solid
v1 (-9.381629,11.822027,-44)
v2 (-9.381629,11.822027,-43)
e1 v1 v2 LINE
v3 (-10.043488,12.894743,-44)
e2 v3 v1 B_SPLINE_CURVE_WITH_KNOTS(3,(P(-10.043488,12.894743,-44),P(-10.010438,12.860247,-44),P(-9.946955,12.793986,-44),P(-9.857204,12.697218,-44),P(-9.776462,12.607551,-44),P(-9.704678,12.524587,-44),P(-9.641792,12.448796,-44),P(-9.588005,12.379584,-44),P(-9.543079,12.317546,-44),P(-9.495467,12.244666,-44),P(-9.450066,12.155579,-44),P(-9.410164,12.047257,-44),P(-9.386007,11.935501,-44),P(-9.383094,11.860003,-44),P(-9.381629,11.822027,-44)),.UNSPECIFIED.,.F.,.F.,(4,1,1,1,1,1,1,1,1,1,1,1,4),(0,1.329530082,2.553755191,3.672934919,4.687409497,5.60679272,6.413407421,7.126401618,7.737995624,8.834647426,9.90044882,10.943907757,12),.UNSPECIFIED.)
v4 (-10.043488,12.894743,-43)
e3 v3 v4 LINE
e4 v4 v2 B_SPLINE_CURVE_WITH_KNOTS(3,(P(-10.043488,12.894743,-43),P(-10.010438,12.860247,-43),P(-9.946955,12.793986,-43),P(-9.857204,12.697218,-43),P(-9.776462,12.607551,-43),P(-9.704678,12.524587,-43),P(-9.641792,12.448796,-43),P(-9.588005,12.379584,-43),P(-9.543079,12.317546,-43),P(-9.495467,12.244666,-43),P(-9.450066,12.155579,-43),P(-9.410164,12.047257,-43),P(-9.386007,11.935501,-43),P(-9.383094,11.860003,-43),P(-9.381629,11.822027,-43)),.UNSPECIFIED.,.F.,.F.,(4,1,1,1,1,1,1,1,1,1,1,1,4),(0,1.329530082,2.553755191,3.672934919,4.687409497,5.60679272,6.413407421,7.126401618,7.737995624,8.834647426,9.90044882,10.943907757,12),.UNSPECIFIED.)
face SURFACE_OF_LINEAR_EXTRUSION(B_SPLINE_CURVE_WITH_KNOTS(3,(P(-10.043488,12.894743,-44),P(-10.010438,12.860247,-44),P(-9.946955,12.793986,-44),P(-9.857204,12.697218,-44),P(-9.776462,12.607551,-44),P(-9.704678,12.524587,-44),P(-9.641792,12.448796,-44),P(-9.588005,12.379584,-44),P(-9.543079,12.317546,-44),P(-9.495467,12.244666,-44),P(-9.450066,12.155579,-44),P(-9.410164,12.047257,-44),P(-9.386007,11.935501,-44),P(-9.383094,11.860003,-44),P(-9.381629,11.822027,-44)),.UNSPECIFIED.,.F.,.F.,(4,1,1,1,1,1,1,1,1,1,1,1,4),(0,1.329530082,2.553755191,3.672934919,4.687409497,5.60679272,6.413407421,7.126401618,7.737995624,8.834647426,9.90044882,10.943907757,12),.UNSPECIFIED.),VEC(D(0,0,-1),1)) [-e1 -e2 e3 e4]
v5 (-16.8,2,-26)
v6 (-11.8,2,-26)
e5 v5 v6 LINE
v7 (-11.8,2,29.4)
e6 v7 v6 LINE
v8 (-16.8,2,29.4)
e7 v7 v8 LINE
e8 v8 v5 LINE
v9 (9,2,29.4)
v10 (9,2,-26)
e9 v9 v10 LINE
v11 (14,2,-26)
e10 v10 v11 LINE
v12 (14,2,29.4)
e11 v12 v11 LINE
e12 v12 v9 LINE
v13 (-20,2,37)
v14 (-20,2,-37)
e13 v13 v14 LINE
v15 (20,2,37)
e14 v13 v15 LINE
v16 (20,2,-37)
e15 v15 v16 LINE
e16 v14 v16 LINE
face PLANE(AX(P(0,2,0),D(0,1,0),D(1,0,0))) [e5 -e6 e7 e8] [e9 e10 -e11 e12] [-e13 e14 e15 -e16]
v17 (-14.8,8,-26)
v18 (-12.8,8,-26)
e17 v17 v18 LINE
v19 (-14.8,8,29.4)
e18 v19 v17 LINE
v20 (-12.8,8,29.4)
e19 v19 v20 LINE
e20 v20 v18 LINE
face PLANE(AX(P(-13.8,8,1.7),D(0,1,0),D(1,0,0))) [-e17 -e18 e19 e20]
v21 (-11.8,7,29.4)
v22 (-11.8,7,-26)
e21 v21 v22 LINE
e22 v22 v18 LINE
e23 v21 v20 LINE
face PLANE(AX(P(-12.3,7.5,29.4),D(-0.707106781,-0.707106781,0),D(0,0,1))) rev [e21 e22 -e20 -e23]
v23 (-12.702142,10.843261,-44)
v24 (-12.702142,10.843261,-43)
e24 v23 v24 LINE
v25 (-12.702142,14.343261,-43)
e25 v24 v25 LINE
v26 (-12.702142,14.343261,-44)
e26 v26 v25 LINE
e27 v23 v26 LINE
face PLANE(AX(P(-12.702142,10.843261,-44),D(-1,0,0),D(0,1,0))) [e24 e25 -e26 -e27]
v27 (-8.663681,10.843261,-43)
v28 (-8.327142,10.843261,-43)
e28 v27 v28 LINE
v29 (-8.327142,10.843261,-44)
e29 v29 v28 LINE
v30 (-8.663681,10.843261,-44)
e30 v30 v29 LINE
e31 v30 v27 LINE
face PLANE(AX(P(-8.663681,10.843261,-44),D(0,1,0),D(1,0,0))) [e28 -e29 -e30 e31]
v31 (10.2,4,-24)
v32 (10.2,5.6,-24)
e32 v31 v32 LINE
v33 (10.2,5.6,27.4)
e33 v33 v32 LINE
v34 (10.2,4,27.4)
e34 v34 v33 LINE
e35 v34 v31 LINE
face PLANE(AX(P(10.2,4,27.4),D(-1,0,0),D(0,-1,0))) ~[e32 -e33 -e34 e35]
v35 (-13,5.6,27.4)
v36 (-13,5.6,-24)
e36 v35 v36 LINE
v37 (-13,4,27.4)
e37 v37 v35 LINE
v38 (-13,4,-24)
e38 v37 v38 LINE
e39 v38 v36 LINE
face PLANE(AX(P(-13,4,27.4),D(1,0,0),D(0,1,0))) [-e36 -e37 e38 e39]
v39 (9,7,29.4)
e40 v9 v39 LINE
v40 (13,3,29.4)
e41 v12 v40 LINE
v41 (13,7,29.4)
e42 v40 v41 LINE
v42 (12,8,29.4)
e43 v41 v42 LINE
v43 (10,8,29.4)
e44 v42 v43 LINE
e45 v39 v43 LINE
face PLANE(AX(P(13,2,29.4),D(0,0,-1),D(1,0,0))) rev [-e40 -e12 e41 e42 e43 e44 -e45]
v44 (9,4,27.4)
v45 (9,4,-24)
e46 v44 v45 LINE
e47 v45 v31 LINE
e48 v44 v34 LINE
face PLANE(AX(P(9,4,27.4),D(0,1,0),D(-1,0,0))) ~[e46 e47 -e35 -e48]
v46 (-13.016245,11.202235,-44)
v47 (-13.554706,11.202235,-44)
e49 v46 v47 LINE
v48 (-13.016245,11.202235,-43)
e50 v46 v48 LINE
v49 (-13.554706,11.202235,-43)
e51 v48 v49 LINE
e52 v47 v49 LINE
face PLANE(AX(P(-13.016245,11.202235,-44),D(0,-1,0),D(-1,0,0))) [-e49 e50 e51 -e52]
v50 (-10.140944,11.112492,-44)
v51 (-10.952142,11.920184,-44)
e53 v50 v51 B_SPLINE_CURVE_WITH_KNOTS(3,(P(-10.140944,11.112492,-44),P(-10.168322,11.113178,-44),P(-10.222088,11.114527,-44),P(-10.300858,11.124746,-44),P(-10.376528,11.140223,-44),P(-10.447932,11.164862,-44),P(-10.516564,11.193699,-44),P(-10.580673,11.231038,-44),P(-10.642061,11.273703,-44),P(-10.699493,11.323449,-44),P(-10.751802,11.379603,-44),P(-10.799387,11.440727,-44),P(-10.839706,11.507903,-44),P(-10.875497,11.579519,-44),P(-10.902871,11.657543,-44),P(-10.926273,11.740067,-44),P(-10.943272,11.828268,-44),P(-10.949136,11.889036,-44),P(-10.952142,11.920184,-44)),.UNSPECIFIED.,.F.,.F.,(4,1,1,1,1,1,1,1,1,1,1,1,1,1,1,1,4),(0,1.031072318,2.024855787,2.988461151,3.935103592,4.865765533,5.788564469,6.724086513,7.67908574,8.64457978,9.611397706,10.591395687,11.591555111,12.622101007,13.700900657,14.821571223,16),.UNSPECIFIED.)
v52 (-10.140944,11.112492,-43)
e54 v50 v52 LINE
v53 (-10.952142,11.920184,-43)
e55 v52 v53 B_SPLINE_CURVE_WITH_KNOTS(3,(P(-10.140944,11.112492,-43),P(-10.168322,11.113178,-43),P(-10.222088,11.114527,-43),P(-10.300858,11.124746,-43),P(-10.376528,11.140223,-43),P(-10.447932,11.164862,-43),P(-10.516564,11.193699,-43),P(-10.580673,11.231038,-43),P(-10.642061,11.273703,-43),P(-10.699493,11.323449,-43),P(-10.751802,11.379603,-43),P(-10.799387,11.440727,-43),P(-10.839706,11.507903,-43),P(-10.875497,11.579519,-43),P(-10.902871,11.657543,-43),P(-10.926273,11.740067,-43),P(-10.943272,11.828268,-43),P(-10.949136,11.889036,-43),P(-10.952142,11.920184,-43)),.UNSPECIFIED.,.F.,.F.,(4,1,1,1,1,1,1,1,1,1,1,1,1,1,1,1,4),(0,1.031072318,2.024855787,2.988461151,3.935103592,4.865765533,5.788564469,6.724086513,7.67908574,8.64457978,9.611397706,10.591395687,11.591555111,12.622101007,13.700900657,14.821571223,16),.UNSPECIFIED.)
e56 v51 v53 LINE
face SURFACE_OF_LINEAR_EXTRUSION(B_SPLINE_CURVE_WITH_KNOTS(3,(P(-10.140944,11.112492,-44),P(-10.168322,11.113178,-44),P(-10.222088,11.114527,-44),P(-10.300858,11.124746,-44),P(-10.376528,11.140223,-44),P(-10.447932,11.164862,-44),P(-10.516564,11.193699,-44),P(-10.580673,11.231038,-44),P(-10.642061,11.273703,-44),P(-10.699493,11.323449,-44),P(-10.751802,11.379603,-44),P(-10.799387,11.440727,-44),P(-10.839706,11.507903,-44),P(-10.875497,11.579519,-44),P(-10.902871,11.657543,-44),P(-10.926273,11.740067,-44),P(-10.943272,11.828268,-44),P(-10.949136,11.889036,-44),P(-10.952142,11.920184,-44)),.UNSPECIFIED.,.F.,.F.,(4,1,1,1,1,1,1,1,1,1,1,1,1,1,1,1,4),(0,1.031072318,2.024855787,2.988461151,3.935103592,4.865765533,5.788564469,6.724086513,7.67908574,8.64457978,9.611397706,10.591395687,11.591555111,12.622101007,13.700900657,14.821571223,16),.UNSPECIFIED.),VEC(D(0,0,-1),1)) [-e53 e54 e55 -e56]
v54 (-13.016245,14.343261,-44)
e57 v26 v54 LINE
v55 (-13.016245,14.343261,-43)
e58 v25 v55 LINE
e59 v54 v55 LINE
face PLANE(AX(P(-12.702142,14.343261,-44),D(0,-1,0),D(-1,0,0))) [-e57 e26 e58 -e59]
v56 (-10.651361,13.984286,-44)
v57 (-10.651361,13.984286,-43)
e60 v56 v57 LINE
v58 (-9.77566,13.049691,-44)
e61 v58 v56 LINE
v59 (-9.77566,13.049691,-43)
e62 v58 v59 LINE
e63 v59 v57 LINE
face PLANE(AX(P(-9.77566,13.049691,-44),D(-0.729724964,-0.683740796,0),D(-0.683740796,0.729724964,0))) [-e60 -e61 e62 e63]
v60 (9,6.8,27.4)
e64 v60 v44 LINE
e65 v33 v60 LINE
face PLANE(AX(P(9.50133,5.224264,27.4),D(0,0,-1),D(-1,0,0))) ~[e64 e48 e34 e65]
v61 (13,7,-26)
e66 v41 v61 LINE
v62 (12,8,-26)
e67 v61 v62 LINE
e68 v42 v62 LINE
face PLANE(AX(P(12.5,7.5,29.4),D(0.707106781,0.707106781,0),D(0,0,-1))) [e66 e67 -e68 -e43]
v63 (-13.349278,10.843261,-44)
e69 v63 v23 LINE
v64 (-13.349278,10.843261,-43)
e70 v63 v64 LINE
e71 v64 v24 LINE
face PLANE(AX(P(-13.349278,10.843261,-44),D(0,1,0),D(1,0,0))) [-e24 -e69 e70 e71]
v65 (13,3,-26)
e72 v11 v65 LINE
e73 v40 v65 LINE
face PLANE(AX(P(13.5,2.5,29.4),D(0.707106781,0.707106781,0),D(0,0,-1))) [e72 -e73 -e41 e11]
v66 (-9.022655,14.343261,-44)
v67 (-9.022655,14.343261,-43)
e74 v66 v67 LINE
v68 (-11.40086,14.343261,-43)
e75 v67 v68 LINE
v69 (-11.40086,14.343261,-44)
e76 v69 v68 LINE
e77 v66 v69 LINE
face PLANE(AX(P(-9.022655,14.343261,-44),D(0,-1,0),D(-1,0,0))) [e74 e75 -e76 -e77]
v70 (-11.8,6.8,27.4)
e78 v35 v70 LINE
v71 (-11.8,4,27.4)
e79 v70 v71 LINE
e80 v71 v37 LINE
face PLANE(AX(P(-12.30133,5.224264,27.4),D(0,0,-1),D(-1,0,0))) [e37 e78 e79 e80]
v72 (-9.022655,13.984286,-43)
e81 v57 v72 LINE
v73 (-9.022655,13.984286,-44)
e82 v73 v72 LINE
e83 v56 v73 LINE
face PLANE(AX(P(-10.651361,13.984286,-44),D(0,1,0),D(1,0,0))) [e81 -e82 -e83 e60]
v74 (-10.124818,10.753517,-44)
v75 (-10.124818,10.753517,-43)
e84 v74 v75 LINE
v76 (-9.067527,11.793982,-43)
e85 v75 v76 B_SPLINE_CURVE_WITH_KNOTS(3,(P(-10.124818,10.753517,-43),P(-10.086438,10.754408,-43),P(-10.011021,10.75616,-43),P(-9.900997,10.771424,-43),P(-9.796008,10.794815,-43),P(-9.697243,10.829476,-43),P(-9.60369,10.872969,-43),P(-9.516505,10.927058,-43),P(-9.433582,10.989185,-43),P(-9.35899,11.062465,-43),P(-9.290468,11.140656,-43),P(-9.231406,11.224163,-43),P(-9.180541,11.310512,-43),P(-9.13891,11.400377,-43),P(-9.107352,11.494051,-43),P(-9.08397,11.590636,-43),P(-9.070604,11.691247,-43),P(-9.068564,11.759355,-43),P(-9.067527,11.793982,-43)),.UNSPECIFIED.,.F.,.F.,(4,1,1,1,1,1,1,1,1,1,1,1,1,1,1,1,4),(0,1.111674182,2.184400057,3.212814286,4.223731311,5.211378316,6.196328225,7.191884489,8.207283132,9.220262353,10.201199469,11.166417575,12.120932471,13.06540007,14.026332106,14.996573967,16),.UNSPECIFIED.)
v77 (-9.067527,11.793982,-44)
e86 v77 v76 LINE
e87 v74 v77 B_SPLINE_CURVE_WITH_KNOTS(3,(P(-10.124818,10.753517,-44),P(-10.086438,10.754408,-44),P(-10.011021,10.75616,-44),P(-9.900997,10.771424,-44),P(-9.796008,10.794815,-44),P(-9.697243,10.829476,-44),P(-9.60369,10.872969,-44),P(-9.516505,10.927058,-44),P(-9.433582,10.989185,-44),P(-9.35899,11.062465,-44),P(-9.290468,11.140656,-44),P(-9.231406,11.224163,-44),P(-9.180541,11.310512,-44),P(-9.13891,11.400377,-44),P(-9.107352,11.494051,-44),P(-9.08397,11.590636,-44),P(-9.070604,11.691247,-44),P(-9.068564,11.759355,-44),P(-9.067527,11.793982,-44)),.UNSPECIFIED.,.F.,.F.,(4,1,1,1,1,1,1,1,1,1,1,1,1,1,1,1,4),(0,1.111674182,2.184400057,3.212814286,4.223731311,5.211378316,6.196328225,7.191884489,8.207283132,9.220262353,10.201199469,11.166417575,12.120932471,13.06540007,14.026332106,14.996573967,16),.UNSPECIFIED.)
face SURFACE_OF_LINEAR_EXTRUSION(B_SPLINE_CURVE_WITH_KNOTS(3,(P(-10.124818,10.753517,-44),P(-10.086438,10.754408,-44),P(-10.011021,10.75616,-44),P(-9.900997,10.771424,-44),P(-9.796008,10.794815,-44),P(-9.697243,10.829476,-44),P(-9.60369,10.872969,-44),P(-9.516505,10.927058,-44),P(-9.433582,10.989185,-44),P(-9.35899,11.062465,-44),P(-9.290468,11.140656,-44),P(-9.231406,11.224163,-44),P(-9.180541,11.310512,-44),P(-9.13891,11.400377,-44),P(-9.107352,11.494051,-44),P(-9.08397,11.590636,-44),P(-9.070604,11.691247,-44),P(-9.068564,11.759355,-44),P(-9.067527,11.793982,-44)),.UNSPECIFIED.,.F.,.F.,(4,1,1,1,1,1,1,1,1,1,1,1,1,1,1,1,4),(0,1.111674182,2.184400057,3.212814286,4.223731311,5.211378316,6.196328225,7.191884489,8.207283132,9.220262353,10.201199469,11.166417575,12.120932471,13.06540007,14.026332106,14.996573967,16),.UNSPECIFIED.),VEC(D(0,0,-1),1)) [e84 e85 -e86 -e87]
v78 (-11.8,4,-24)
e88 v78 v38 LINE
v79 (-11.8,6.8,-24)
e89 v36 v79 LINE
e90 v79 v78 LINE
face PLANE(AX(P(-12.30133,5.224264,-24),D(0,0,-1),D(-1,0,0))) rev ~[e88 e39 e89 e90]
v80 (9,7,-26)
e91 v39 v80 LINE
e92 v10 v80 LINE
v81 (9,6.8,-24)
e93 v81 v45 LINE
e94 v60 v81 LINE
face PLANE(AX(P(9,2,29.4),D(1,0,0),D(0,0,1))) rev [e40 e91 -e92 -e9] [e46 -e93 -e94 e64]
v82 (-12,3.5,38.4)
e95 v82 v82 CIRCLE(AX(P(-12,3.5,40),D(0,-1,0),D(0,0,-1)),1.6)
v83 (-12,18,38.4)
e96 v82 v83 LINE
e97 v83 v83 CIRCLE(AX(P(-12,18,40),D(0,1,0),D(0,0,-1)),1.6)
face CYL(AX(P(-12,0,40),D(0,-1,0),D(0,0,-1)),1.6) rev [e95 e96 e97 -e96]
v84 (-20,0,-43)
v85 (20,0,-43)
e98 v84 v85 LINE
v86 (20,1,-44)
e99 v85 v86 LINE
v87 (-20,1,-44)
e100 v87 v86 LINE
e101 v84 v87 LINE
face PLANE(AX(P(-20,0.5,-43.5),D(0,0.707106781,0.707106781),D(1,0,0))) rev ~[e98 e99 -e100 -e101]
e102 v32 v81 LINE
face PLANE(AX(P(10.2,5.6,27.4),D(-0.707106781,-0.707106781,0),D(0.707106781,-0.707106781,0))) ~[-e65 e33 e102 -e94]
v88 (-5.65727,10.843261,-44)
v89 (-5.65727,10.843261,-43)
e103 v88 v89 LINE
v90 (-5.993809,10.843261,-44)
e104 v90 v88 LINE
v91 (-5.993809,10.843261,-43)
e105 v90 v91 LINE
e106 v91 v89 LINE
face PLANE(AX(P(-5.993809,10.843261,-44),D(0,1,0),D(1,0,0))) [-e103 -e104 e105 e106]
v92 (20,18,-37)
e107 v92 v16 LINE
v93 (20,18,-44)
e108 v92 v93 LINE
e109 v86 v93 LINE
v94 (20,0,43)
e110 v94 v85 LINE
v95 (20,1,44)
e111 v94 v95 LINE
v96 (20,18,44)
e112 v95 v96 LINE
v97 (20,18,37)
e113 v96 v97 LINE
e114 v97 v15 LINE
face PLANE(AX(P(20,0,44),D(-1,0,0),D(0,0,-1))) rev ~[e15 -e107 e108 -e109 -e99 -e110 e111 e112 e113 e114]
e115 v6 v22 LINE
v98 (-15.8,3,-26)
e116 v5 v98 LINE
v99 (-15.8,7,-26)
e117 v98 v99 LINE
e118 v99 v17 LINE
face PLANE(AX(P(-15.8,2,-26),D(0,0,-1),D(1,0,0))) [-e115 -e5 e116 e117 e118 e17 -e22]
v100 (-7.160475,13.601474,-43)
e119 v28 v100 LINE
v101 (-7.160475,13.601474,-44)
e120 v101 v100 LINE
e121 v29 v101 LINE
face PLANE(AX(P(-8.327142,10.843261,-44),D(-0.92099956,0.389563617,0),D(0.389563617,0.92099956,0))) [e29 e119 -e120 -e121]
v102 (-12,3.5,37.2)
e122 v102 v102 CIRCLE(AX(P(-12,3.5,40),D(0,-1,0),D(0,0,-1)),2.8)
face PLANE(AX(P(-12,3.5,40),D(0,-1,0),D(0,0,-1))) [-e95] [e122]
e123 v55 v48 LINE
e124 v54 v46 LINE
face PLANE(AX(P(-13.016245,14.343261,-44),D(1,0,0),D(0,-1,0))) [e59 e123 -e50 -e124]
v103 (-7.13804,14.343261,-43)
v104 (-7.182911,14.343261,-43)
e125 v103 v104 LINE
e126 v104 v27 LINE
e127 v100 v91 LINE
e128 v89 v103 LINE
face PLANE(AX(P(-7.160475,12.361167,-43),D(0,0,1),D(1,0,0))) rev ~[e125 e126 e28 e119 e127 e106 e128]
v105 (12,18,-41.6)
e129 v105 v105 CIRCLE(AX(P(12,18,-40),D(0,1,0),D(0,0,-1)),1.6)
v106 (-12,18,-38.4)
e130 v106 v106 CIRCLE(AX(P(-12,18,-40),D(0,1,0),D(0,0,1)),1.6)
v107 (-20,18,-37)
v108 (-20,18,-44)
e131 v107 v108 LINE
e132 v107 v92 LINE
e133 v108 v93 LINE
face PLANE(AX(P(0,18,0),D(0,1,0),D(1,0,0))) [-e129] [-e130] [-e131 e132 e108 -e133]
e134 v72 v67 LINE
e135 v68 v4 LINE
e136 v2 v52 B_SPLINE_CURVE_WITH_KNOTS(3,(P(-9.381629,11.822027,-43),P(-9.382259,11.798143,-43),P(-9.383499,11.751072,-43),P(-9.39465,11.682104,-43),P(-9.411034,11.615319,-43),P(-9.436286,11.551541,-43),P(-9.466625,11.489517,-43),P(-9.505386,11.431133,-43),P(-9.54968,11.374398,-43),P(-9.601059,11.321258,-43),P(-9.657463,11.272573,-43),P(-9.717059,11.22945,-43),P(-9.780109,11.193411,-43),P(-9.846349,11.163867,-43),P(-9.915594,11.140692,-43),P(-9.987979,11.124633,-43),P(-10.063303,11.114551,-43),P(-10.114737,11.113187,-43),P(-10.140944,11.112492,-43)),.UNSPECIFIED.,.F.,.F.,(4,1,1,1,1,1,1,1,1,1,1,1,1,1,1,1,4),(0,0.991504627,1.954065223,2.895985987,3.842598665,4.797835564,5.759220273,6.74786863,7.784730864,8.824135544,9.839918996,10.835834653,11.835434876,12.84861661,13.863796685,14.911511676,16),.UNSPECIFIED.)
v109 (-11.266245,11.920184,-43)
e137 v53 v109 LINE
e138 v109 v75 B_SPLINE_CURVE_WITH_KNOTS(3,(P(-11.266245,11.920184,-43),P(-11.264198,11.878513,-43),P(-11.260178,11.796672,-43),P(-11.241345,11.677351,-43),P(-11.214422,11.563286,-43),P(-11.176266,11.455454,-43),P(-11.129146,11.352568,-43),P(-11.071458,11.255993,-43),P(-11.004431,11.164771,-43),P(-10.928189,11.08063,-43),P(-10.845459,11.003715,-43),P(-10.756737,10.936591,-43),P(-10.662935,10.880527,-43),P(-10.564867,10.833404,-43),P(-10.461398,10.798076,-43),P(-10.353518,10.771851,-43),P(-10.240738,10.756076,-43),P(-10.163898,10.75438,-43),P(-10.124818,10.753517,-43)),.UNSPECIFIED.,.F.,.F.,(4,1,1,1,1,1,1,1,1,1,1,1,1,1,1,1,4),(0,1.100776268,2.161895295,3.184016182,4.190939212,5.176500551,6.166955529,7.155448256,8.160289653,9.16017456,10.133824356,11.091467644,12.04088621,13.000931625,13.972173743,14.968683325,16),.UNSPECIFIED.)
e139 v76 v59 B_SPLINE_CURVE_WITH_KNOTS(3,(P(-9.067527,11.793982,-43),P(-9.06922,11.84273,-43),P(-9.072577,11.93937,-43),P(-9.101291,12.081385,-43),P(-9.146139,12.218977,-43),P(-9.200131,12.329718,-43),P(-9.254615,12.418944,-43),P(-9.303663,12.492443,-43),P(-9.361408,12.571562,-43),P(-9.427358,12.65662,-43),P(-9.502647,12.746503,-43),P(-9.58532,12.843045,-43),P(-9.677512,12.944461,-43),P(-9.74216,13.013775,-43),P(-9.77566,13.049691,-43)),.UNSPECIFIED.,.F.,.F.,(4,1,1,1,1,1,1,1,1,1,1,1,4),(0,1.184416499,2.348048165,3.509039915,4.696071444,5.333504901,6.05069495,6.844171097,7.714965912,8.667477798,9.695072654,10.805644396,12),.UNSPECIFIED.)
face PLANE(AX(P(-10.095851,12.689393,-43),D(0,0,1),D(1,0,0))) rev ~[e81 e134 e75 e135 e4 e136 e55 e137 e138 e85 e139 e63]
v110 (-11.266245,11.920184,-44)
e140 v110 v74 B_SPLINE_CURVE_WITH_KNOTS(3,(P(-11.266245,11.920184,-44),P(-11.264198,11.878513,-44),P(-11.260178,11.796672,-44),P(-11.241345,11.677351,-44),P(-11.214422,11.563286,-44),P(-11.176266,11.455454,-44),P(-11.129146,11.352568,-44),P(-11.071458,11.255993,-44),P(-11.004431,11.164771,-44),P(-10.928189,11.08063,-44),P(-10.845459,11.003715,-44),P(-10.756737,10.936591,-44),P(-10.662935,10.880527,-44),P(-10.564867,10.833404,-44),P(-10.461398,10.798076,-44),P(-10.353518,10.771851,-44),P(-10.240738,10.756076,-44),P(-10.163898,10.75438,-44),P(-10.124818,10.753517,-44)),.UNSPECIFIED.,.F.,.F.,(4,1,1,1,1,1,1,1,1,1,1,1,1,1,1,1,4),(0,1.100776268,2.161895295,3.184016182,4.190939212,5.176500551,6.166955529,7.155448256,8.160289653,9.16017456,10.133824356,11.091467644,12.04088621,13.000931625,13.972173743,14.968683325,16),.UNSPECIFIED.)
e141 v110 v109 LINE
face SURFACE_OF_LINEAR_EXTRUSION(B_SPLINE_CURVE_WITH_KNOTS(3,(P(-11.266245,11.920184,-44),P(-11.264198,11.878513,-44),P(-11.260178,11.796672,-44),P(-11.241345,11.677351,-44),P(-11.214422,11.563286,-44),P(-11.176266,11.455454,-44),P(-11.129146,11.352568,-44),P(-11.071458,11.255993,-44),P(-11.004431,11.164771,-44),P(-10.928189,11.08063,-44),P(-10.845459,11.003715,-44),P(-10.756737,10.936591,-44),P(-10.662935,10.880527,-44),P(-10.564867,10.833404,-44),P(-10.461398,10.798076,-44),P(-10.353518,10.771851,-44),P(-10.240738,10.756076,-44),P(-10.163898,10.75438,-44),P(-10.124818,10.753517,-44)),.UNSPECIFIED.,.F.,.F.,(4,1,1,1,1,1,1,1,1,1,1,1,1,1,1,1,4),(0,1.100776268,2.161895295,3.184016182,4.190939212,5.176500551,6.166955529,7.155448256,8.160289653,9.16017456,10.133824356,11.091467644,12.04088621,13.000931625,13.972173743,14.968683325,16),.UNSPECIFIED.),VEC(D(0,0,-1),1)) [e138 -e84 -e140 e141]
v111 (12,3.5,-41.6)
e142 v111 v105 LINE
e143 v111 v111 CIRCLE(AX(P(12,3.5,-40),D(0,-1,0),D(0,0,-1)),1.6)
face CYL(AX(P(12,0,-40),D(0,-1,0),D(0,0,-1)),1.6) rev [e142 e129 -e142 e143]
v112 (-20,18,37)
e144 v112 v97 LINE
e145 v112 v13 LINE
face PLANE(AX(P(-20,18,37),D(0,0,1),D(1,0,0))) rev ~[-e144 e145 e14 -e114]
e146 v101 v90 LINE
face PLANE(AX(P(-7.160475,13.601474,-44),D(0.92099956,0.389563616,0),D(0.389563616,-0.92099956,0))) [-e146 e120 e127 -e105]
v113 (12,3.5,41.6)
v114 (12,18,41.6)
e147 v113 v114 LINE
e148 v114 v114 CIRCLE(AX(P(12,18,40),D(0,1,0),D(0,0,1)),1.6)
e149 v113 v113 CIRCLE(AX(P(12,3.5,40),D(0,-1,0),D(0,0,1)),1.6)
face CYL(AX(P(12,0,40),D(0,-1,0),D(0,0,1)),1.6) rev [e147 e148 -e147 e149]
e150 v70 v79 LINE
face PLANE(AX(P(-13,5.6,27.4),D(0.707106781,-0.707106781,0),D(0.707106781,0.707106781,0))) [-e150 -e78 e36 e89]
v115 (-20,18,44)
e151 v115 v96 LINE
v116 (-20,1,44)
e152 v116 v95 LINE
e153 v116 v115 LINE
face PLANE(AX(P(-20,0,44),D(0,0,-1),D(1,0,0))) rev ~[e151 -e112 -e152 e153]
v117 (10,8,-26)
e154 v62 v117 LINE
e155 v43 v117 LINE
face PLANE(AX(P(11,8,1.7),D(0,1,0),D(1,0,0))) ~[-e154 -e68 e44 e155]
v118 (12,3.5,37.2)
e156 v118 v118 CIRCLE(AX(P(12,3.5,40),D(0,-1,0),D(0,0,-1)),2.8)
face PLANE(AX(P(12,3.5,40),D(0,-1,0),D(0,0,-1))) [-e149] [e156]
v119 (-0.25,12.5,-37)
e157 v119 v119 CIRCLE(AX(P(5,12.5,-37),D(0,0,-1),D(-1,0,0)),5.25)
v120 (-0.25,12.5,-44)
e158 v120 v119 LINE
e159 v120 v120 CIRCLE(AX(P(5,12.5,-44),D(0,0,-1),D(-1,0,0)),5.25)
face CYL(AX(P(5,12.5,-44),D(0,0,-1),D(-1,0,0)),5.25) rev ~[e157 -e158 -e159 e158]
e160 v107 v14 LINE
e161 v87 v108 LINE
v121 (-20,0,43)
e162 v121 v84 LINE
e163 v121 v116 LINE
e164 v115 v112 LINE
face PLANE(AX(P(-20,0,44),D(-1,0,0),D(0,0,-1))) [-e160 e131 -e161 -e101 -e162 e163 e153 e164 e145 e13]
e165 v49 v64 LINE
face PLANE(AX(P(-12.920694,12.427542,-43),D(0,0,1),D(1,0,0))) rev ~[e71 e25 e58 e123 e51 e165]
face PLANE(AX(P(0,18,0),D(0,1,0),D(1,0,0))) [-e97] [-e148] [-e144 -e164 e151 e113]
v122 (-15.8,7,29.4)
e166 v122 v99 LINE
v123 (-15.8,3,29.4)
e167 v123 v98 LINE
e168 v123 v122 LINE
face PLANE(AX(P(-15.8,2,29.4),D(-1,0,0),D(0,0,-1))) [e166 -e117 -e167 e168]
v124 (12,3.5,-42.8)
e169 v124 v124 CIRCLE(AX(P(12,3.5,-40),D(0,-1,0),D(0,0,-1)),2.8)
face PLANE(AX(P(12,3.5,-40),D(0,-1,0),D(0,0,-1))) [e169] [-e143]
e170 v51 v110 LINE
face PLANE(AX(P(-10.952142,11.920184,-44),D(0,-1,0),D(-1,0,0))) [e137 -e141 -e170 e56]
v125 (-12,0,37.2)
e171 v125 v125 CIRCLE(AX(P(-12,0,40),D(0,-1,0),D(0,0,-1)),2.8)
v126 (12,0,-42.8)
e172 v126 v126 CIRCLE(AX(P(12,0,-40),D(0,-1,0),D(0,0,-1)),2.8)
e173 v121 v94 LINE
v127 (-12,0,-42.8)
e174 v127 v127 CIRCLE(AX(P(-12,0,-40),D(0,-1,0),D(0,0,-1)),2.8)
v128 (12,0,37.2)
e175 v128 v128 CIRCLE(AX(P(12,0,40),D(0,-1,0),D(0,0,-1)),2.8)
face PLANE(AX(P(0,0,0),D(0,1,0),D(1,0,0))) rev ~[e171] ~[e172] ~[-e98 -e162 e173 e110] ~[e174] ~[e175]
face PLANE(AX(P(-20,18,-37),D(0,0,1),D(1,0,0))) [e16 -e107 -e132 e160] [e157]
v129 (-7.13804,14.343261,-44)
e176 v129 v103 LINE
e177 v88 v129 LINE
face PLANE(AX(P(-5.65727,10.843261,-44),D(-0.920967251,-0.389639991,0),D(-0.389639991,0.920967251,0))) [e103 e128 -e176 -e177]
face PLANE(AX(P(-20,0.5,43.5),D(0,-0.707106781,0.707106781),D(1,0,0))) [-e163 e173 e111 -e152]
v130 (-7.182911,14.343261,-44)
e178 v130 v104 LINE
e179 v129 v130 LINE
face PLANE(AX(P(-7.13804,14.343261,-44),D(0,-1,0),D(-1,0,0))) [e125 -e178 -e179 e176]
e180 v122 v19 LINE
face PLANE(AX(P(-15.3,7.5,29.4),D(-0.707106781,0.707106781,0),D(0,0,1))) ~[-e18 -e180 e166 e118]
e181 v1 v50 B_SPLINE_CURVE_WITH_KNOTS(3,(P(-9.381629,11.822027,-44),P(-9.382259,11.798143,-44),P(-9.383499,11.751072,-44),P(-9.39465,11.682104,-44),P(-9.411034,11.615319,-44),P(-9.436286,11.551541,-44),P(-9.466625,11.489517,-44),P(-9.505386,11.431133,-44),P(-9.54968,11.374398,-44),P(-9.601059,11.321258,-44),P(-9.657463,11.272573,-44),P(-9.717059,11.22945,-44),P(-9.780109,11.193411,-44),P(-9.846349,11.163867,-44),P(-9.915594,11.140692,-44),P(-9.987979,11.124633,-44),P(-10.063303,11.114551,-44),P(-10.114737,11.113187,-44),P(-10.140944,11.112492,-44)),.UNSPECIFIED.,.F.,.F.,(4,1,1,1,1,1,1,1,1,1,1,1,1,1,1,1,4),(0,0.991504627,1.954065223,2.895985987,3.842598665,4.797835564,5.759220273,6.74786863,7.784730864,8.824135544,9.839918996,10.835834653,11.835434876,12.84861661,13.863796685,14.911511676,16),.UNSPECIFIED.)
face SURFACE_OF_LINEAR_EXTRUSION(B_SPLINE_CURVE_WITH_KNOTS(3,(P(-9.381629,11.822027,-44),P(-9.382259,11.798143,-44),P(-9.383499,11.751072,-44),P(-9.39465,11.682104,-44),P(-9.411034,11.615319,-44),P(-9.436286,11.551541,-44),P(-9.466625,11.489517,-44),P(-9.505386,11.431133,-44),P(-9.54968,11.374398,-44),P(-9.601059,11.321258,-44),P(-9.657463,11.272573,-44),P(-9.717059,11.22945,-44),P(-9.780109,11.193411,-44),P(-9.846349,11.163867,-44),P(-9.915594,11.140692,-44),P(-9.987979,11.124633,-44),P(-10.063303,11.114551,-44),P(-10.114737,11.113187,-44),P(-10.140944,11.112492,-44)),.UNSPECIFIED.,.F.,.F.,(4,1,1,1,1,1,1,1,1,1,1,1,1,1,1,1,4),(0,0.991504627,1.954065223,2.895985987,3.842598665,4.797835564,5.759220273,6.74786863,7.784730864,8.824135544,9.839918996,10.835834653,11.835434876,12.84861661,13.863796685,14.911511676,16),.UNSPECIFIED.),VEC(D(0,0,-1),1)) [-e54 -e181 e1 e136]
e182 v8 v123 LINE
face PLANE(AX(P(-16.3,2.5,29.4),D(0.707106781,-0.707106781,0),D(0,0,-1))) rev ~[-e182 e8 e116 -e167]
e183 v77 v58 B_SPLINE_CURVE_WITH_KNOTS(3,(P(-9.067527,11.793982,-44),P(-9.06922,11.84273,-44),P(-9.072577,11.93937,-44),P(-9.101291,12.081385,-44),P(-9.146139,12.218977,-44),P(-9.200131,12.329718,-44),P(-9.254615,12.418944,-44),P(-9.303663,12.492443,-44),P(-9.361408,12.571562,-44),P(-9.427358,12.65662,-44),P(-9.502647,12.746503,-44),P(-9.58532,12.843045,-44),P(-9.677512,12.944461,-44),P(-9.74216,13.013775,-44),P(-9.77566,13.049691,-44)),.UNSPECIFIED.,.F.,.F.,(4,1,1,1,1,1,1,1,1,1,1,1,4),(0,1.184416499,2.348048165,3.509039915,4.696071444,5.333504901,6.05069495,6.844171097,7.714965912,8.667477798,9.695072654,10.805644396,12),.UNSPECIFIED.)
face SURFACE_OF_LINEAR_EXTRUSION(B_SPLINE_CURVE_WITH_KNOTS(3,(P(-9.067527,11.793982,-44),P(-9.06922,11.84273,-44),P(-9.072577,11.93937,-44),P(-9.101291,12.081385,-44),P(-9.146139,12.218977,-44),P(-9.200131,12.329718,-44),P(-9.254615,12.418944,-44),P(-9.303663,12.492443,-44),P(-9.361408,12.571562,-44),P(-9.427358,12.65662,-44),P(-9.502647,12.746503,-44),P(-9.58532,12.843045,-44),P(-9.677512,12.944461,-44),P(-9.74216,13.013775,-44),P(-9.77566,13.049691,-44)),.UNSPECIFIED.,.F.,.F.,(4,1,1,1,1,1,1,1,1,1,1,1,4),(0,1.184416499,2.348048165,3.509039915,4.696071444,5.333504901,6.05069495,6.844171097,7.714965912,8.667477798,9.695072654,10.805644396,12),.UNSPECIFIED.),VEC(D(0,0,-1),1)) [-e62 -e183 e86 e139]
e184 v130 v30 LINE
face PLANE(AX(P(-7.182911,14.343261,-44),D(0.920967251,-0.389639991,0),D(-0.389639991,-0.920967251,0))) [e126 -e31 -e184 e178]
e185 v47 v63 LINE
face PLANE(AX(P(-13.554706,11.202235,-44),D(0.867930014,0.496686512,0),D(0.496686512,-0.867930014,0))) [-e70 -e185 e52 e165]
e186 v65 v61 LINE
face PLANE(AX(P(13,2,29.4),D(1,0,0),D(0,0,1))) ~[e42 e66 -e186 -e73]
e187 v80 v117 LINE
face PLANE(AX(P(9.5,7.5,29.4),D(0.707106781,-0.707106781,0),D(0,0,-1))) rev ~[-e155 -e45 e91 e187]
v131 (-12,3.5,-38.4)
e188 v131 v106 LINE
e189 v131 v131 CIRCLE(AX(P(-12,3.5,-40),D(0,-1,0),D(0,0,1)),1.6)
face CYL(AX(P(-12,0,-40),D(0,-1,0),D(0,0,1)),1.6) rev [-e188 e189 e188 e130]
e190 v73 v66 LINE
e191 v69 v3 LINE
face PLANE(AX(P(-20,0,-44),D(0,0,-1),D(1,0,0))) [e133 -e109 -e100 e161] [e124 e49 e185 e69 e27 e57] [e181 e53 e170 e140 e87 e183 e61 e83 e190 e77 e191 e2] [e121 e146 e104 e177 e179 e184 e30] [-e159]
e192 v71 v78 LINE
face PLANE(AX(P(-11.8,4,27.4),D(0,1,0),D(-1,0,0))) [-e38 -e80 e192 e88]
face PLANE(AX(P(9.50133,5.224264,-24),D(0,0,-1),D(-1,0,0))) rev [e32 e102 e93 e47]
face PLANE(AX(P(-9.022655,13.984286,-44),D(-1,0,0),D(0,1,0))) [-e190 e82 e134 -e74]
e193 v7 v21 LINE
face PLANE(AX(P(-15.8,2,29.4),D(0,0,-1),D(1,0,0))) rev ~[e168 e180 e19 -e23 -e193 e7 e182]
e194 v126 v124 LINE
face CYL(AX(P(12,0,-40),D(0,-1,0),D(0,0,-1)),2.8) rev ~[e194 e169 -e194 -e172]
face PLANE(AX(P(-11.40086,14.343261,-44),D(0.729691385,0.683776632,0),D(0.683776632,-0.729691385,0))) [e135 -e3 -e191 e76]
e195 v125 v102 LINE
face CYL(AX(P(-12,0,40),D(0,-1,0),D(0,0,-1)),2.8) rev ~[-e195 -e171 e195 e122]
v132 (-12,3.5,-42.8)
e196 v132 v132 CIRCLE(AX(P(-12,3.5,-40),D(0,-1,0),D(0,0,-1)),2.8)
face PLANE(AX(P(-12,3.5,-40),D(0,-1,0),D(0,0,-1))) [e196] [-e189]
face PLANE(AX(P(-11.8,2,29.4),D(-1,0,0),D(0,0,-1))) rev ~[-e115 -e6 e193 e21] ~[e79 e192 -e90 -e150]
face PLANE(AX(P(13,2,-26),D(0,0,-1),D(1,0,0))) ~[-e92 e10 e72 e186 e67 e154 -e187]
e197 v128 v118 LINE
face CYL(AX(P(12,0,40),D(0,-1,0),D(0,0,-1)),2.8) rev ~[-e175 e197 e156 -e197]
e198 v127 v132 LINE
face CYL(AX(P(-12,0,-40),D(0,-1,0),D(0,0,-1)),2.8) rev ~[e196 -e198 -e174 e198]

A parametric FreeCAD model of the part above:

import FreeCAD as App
import Part
import Sketcher
from FreeCAD import Vector
Q = App.Units.Quantity


def edges_at(feature, points):
    """Names of the edges that pass closest to the given points."""
    edges = feature.Shape.Edges
    near = lambda p: min(range(len(edges)), key=lambda i: edges[i].distToShape(Part.Vertex(*p))[0])
    return sorted({f"Edge{near(p) + 1}" for p in points})

doc = App.newDocument("Part")
body = doc.addObject("PartDesign::Body", "Body")

sketch1 = body.newObject("Sketcher::SketchObject", "Sketch")
sketch1.AttachmentSupport = (doc.getObject("XZ_Plane"), [""])
sketch1.MapMode = "FlatFace"
sketch1.addGeometry([
    Part.LineSegment(Vector(-20, -44, 0), Vector(-20, 44, 0)),
    Part.LineSegment(Vector(-20, 44, 0), Vector(20, 44, 0)),
    Part.LineSegment(Vector(20, 44, 0), Vector(20, -44, 0)),
    Part.LineSegment(Vector(20, -44, 0), Vector(-20, -44, 0)),
    Part.Circle(Vector(-12, 40, 0), Vector(0, 0, 1), 1.6),
    Part.Circle(Vector(12, 40, 0), Vector(0, 0, 1), 1.6),
    Part.Circle(Vector(-12, -40, 0), Vector(0, 0, 1), 1.6),
    Part.Circle(Vector(12, -40, 0), Vector(0, 0, 1), 1.6),
], False)
sketch1.addConstraint([
    Sketcher.Constraint("Coincident", 0, 2, 1, 1),
    Sketcher.Constraint("Coincident", 1, 2, 2, 1),
    Sketcher.Constraint("Coincident", 2, 2, 3, 1),
    Sketcher.Constraint("Coincident", 3, 2, 0, 1),
    Sketcher.Constraint("Vertical", 0),
    Sketcher.Constraint("Horizontal", 1),
    Sketcher.Constraint("Vertical", 2),
    Sketcher.Constraint("Horizontal", 3),
    Sketcher.Constraint("Equal", 4, 5),
    Sketcher.Constraint("Equal", 5, 6),
    Sketcher.Constraint("Equal", 6, 7),
    Sketcher.Constraint("Symmetric", 5, 3, 6, 3, -1, 1),
    Sketcher.Constraint("Symmetric", 4, 3, 7, 3, -1, 1),
    Sketcher.Constraint("Symmetric", 0, 2, 2, 2, -1, 1),
    Sketcher.Constraint("Symmetric", 4, 3, 5, 3, -2),
    Sketcher.Constraint("Diameter", 4, Q("3.2 mm")),
    Sketcher.Constraint("DistanceX", 1, 1, 1, 2, Q("40 mm")),
    Sketcher.Constraint("DistanceY", 0, 1, 0, 2, Q("88 mm")),
    Sketcher.Constraint("DistanceX", 4, 3, -1, 1, Q("12 mm")),
    Sketcher.Constraint("DistanceY", -1, 1, 4, 3, Q("40 mm")),
])
pad1 = body.newObject("PartDesign::Pad", "Pad")
pad1.Profile = sketch1
pad1.Length = 18
pad1.Reversed = True

sketch2 = body.newObject("Sketcher::SketchObject", "Sketch001")
sketch2.AttachmentSupport = (doc.getObject("XZ_Plane"), [""])
sketch2.MapMode = "FlatFace"
sketch2.AttachmentOffset = App.Placement(Vector(0, 0, -18), App.Rotation())
sketch2.addGeometry([
    Part.LineSegment(Vector(-20, -37, 0), Vector(-20, 37, 0)),
    Part.LineSegment(Vector(-20, 37, 0), Vector(20, 37, 0)),
    Part.LineSegment(Vector(20, 37, 0), Vector(20, -37, 0)),
    Part.LineSegment(Vector(20, -37, 0), Vector(-20, -37, 0)),
], False)
sketch2.addConstraint([
    Sketcher.Constraint("Coincident", 0, 2, 1, 1),
    Sketcher.Constraint("Coincident", 1, 2, 2, 1),
    Sketcher.Constraint("Coincident", 2, 2, 3, 1),
    Sketcher.Constraint("Coincident", 3, 2, 0, 1),
    Sketcher.Constraint("Vertical", 0),
    Sketcher.Constraint("Horizontal", 1),
    Sketcher.Constraint("Vertical", 2),
    Sketcher.Constraint("Horizontal", 3),
    Sketcher.Constraint("Symmetric", 0, 2, 2, 2, -1, 1),
    Sketcher.Constraint("DistanceX", 1, 1, 1, 2, Q("40 mm")),
    Sketcher.Constraint("DistanceY", 0, 1, 0, 2, Q("74 mm")),
])
pocket1 = body.newObject("PartDesign::Pocket", "Pocket")
pocket1.Profile = sketch2
pocket1.Length = 16
pocket1.Reversed = True

sketch3 = body.newObject("Sketcher::SketchObject", "Sketch002")
sketch3.AttachmentSupport = (doc.getObject("XZ_Plane"), [""])
sketch3.MapMode = "FlatFace"
sketch3.AttachmentOffset = App.Placement(Vector(0, 0, -2), App.Rotation())
sketch3.addGeometry([
    Part.LineSegment(Vector(-15.8, -26, 0), Vector(-15.8, 29.4, 0)),
    Part.LineSegment(Vector(-15.8, 29.4, 0), Vector(-11.8, 29.4, 0)),
    Part.LineSegment(Vector(-11.8, 29.4, 0), Vector(-11.8, -26, 0)),
    Part.LineSegment(Vector(-11.8, -26, 0), Vector(-15.8, -26, 0)),
], False)
sketch3.addConstraint([
    Sketcher.Constraint("Coincident", 0, 2, 1, 1),
    Sketcher.Constraint("Coincident", 1, 2, 2, 1),
    Sketcher.Constraint("Coincident", 2, 2, 3, 1),
    Sketcher.Constraint("Coincident", 3, 2, 0, 1),
    Sketcher.Constraint("Vertical", 0),
    Sketcher.Constraint("Horizontal", 1),
    Sketcher.Constraint("Vertical", 2),
    Sketcher.Constraint("Horizontal", 3),
    Sketcher.Constraint("DistanceX", 1, 1, 1, 2, Q("4 mm")),
    Sketcher.Constraint("DistanceY", 0, 1, 0, 2, Q("55.4 mm")),
    Sketcher.Constraint("DistanceY", 2, 2, -1, 1, Q("26 mm")),
    Sketcher.Constraint("DistanceX", 0, 2, -1, 1, Q("15.8 mm")),
])
pad2 = body.newObject("PartDesign::Pad", "Pad001")
pad2.Profile = sketch3
pad2.Length = 6
pad2.Reversed = True

sketch4 = body.newObject("Sketcher::SketchObject", "Sketch003")
sketch4.AttachmentSupport = (doc.getObject("XY_Plane"), [""])
sketch4.MapMode = "FlatFace"
sketch4.AttachmentOffset = App.Placement(Vector(0, 0, 27.4), App.Rotation())
sketch4.addGeometry([
    Part.LineSegment(Vector(-13, 4, 0), Vector(-11.8, 4, 0)),
    Part.LineSegment(Vector(-11.8, 4, 0), Vector(-11.8, 6.8, 0)),
    Part.LineSegment(Vector(-11.8, 6.8, 0), Vector(-13, 5.6, 0)),
    Part.LineSegment(Vector(-13, 5.6, 0), Vector(-13, 4, 0)),
], False)
sketch4.addConstraint([
    Sketcher.Constraint("Coincident", 0, 2, 1, 1),
    Sketcher.Constraint("Coincident", 1, 2, 2, 1),
    Sketcher.Constraint("Coincident", 2, 2, 3, 1),
    Sketcher.Constraint("Coincident", 3, 2, 0, 1),
    Sketcher.Constraint("Horizontal", 0),
    Sketcher.Constraint("Vertical", 1),
    Sketcher.Constraint("Vertical", 3),
    Sketcher.Constraint("Angle", 2, Q("-135 deg")),
    Sketcher.Constraint("DistanceX", 0, 1, 0, 2, Q("1.2 mm")),
    Sketcher.Constraint("DistanceY", 1, 1, 1, 2, Q("2.8 mm")),
    Sketcher.Constraint("DistanceY", -1, 1, 0, 2, Q("4 mm")),
    Sketcher.Constraint("DistanceX", 2, 2, -1, 1, Q("13 mm")),
])
pocket2 = body.newObject("PartDesign::Pocket", "Pocket001")
pocket2.Profile = sketch4
pocket2.Length = 51.4
doc.recompute()

datumplane = body.newObject("PartDesign::Plane", "DatumPlane")
datumplane.AttachmentSupport = (doc.getObject("YZ_Plane"), [""])
datumplane.MapMode = "FlatFace"
datumplane.AttachmentOffset = App.Placement(Vector(0, 0, -1.4), App.Rotation())
mirrored = body.newObject("PartDesign::Mirrored", "Mirrored")
mirrored.Originals = [pad2, pocket2]
mirrored.MirrorPlane = (datumplane, [""])
body.Tip = mirrored

sketch5 = body.newObject("Sketcher::SketchObject", "Sketch004")
sketch5.AttachmentSupport = (doc.getObject("XY_Plane"), [""])
sketch5.MapMode = "FlatFace"
sketch5.AttachmentOffset = App.Placement(Vector(0, 0, -44), App.Rotation())
sketch5.addGeometry(Part.Circle(Vector(5, 12, 0), Vector(0, 0, 1), 5), False)
sketch5.addConstraint([
    Sketcher.Constraint("Diameter", 0, Q("10.5 mm")),
    Sketcher.Constraint("DistanceX", -1, 1, 0, 3, Q("5 mm")),
    Sketcher.Constraint("DistanceY", -1, 1, 0, 3, Q("12.5 mm")),
])
pocket3 = body.newObject("PartDesign::Pocket", "Pocket002")
pocket3.Profile = sketch5
pocket3.Type = "UpToFirst"
pocket3.Reversed = True
doc.recompute()

chamfer = body.newObject("PartDesign::Chamfer", "Chamfer")
chamfer.Base = (pocket3, edges_at(pocket3, [
    (-15.8, 2, 1.7),
    (-15.8, 8, 1.7),
    (-11.8, 8, 1.7),
    (13, 8, 1.7),
    (9, 8, 1.7),
    (13, 2, 1.7),
]))
chamfer.Size = 1

sketch6 = body.newObject("Sketcher::SketchObject", "Sketch005")
sketch6.AttachmentSupport = (doc.getObject("XY_Plane"), [""])
sketch6.MapMode = "FlatFace"
sketch6.AttachmentOffset = App.Placement(Vector(0, 0, -44), App.Rotation())
sketch6.addGeometry([
    Part.LineSegment(Vector(-12.702142, 10.843261, 0), Vector(-13.349278, 10.843261, 0)),
    Part.LineSegment(Vector(-13.349278, 10.843261, 0), Vector(-13.554706, 11.202235, 0)),
    Part.LineSegment(Vector(-13.554706, 11.202235, 0), Vector(-13.016245, 11.202235, 0)),
    Part.LineSegment(Vector(-13.016245, 11.202235, 0), Vector(-13.016245, 14.343261, 0)),
    Part.LineSegment(Vector(-13.016245, 14.343261, 0), Vector(-12.702142, 14.343261, 0)),
    Part.LineSegment(Vector(-12.702142, 14.343261, 0), Vector(-12.702142, 10.843261, 0)),
    Part.LineSegment(Vector(-11.266245, 11.920184, 0), Vector(-10.952142, 11.920184, 0)),
    Part.BSplineCurve([Vector(-10.140944, 11.112492, 0), Vector(-10.168322, 11.113178, 0), Vector(-10.222088, 11.114527, 0), Vector(-10.300858, 11.124746, 0), Vector(-10.376528, 11.140223, 0), Vector(-10.447932, 11.164862, 0), Vector(-10.516564, 11.193699, 0), Vector(-10.580673, 11.231038, 0), Vector(-10.642061, 11.273703, 0), Vector(-10.699493, 11.323449, 0), Vector(-10.751802, 11.379603, 0), Vector(-10.799387, 11.440727, 0), Vector(-10.839706, 11.507903, 0), Vector(-10.875497, 11.579519, 0), Vector(-10.902871, 11.657543, 0), Vector(-10.926273, 11.740067, 0), Vector(-10.943272, 11.828268, 0), Vector(-10.949136, 11.889036, 0), Vector(-10.952142, 11.920184, 0)], [4, 1, 1, 1, 1, 1, 1, 1, 1, 1, 1, 1, 1, 1, 1, 1, 4], [0, 1.031072318, 2.024855787, 2.988461151, 3.935103592, 4.865765533, 5.788564469, 6.724086513, 7.67908574, 8.64457978, 9.611397706, 10.591395687, 11.591555111, 12.622101007, 13.700900657, 14.821571223, 16], False, 3, [1, 1, 1, 1, 1, 1, 1, 1, 1, 1, 1, 1, 1, 1, 1, 1, 1, 1, 1], False),
    Part.BSplineCurve([Vector(-9.381629, 11.822027, 0), Vector(-9.382259, 11.798143, 0), Vector(-9.383499, 11.751072, 0), Vector(-9.39465, 11.682104, 0), Vector(-9.411034, 11.615319, 0), Vector(-9.436286, 11.551541, 0), Vector(-9.466625, 11.489517, 0), Vector(-9.505386, 11.431133, 0), Vector(-9.54968, 11.374398, 0), Vector(-9.601059, 11.321258, 0), Vector(-9.657463, 11.272573, 0), Vector(-9.717059, 11.22945, 0), Vector(-9.780109, 11.193411, 0), Vector(-9.846349, 11.163867, 0), Vector(-9.915594, 11.140692, 0), Vector(-9.987979, 11.124633, 0), Vector(-10.063303, 11.114551, 0), Vector(-10.114737, 11.113187, 0), Vector(-10.140944, 11.112492, 0)], [4, 1, 1, 1, 1, 1, 1, 1, 1, 1, 1, 1, 1, 1, 1, 1, 4], [0, 0.991504627, 1.954065223, 2.895985987, 3.842598665, 4.797835564, 5.759220273, 6.74786863, 7.784730864, 8.824135544, 9.839918996, 10.835834653, 11.835434876, 12.84861661, 13.863796685, 14.911511676, 16], False, 3, [1, 1, 1, 1, 1, 1, 1, 1, 1, 1, 1, 1, 1, 1, 1, 1, 1, 1, 1], False),
    Part.BSplineCurve([Vector(-10.043488, 12.894743, 0), Vector(-10.010438, 12.860247, 0), Vector(-9.946955, 12.793986, 0), Vector(-9.857204, 12.697218, 0), Vector(-9.776462, 12.607551, 0), Vector(-9.704678, 12.524587, 0), Vector(-9.641792, 12.448796, 0), Vector(-9.588005, 12.379584, 0), Vector(-9.543079, 12.317546, 0), Vector(-9.495467, 12.244666, 0), Vector(-9.450066, 12.155579, 0), Vector(-9.410164, 12.047257, 0), Vector(-9.386007, 11.935501, 0), Vector(-9.383094, 11.860003, 0), Vector(-9.381629, 11.822027, 0)], [4, 1, 1, 1, 1, 1, 1, 1, 1, 1, 1, 1, 4], [0, 1.329530082, 2.553755191, 3.672934919, 4.687409497, 5.60679272, 6.413407421, 7.126401618, 7.737995624, 8.834647426, 9.90044882, 10.943907757, 12], False, 3, [1, 1, 1, 1, 1, 1, 1, 1, 1, 1, 1, 1, 1, 1, 1], False),
    Part.LineSegment(Vector(-10.043488, 12.894743, 0), Vector(-11.40086, 14.343261, 0)),
    Part.LineSegment(Vector(-11.40086, 14.343261, 0), Vector(-9.022655, 14.343261, 0)),
    Part.LineSegment(Vector(-9.022655, 14.343261, 0), Vector(-9.022655, 13.984286, 0)),
    Part.LineSegment(Vector(-9.022655, 13.984286, 0), Vector(-10.651361, 13.984286, 0)),
    Part.LineSegment(Vector(-10.651361, 13.984286, 0), Vector(-9.77566, 13.049691, 0)),
    Part.BSplineCurve([Vector(-9.067527, 11.793982, 0), Vector(-9.06922, 11.84273, 0), Vector(-9.072577, 11.93937, 0), Vector(-9.101291, 12.081385, 0), Vector(-9.146139, 12.218977, 0), Vector(-9.200131, 12.329718, 0), Vector(-9.254615, 12.418944, 0), Vector(-9.303663, 12.492443, 0), Vector(-9.361408, 12.571562, 0), Vector(-9.427358, 12.65662, 0), Vector(-9.502647, 12.746503, 0), Vector(-9.58532, 12.843045, 0), Vector(-9.677512, 12.944461, 0), Vector(-9.74216, 13.013775, 0), Vector(-9.77566, 13.049691, 0)], [4, 1, 1, 1, 1, 1, 1, 1, 1, 1, 1, 1, 4], [0, 1.184416499, 2.348048165, 3.509039915, 4.696071444, 5.333504901, 6.05069495, 6.844171097, 7.714965912, 8.667477798, 9.695072654, 10.805644396, 12], False, 3, [1, 1, 1, 1, 1, 1, 1, 1, 1, 1, 1, 1, 1, 1, 1], False),
    Part.BSplineCurve([Vector(-10.124818, 10.753517, 0), Vector(-10.086438, 10.754408, 0), Vector(-10.011021, 10.75616, 0), Vector(-9.900997, 10.771424, 0), Vector(-9.796008, 10.794815, 0), Vector(-9.697243, 10.829476, 0), Vector(-9.60369, 10.872969, 0), Vector(-9.516505, 10.927058, 0), Vector(-9.433582, 10.989185, 0), Vector(-9.35899, 11.062465, 0), Vector(-9.290468, 11.140656, 0), Vector(-9.231406, 11.224163, 0), Vector(-9.180541, 11.310512, 0), Vector(-9.13891, 11.400377, 0), Vector(-9.107352, 11.494051, 0), Vector(-9.08397, 11.590636, 0), Vector(-9.070604, 11.691247, 0), Vector(-9.068564, 11.759355, 0), Vector(-9.067527, 11.793982, 0)], [4, 1, 1, 1, 1, 1, 1, 1, 1, 1, 1, 1, 1, 1, 1, 1, 4], [0, 1.111674182, 2.184400057, 3.212814286, 4.223731311, 5.211378316, 6.196328225, 7.191884489, 8.207283132, 9.220262353, 10.201199469, 11.166417575, 12.120932471, 13.06540007, 14.026332106, 14.996573967, 16], False, 3, [1, 1, 1, 1, 1, 1, 1, 1, 1, 1, 1, 1, 1, 1, 1, 1, 1, 1, 1], False),
    Part.BSplineCurve([Vector(-11.266245, 11.920184, 0), Vector(-11.264198, 11.878513, 0), Vector(-11.260178, 11.796672, 0), Vector(-11.241345, 11.677351, 0), Vector(-11.214422, 11.563286, 0), Vector(-11.176266, 11.455454, 0), Vector(-11.129146, 11.352568, 0), Vector(-11.071458, 11.255993, 0), Vector(-11.004431, 11.164771, 0), Vector(-10.928189, 11.08063, 0), Vector(-10.845459, 11.003715, 0), Vector(-10.756737, 10.936591, 0), Vector(-10.662935, 10.880527, 0), Vector(-10.564867, 10.833404, 0), Vector(-10.461398, 10.798076, 0), Vector(-10.353518, 10.771851, 0), Vector(-10.240738, 10.756076, 0), Vector(-10.163898, 10.75438, 0), Vector(-10.124818, 10.753517, 0)], [4, 1, 1, 1, 1, 1, 1, 1, 1, 1, 1, 1, 1, 1, 1, 1, 4], [0, 1.100776268, 2.161895295, 3.184016182, 4.190939212, 5.176500551, 6.166955529, 7.155448256, 8.160289653, 9.16017456, 10.133824356, 11.091467644, 12.04088621, 13.000931625, 13.972173743, 14.968683325, 16], False, 3, [1, 1, 1, 1, 1, 1, 1, 1, 1, 1, 1, 1, 1, 1, 1, 1, 1, 1, 1], False),
    Part.LineSegment(Vector(-8.327142, 10.843261, 0), Vector(-8.663681, 10.843261, 0)),
    Part.LineSegment(Vector(-8.663681, 10.843261, 0), Vector(-7.182911, 14.343261, 0)),
    Part.LineSegment(Vector(-7.182911, 14.343261, 0), Vector(-7.13804, 14.343261, 0)),
    Part.LineSegment(Vector(-7.13804, 14.343261, 0), Vector(-5.65727, 10.843261, 0)),
    Part.LineSegment(Vector(-5.65727, 10.843261, 0), Vector(-5.993809, 10.843261, 0)),
    Part.LineSegment(Vector(-5.993809, 10.843261, 0), Vector(-7.160475, 13.601474, 0)),
    Part.LineSegment(Vector(-7.160475, 13.601474, 0), Vector(-8.327142, 10.843261, 0)),
], False)
sketch6.addConstraint([
    Sketcher.Constraint("Block", 7),
    Sketcher.Constraint("Block", 8),
    Sketcher.Constraint("Block", 9),
    Sketcher.Constraint("Block", 15),
    Sketcher.Constraint("Block", 16),
    Sketcher.Constraint("Block", 17),
    Sketcher.Constraint("Coincident", 0, 2, 1, 1),
    Sketcher.Constraint("Coincident", 1, 2, 2, 1),
    Sketcher.Constraint("Coincident", 2, 2, 3, 1),
    Sketcher.Constraint("Coincident", 3, 2, 4, 1),
    Sketcher.Constraint("Coincident", 4, 2, 5, 1),
    Sketcher.Constraint("Coincident", 5, 2, 0, 1),
    Sketcher.Constraint("Coincident", 6, 2, 7, 2),
    Sketcher.Constraint("Coincident", 9, 1, 10, 1),
    Sketcher.Constraint("Coincident", 10, 2, 11, 1),
    Sketcher.Constraint("Coincident", 11, 2, 12, 1),
    Sketcher.Constraint("Coincident", 12, 2, 13, 1),
    Sketcher.Constraint("Coincident", 13, 2, 14, 1),
    Sketcher.Constraint("Coincident", 14, 2, 15, 2),
    Sketcher.Constraint("Coincident", 17, 1, 6, 1),
    Sketcher.Constraint("Coincident", 18, 2, 19, 1),
    Sketcher.Constraint("Coincident", 19, 2, 20, 1),
    Sketcher.Constraint("Coincident", 20, 2, 21, 1),
    Sketcher.Constraint("Coincident", 21, 2, 22, 1),
    Sketcher.Constraint("Coincident", 22, 2, 23, 1),
    Sketcher.Constraint("Coincident", 23, 2, 24, 1),
    Sketcher.Constraint("Coincident", 24, 2, 18, 1),
    Sketcher.Constraint("Horizontal", 0),
    Sketcher.Constraint("Horizontal", 2),
    Sketcher.Constraint("Vertical", 3),
    Sketcher.Constraint("Horizontal", 4),
    Sketcher.Constraint("Vertical", 5),
    Sketcher.Constraint("Horizontal", 11),
    Sketcher.Constraint("Vertical", 12),
    Sketcher.Constraint("Horizontal", 13),
    Sketcher.Constraint("Horizontal", 18),
    Sketcher.Constraint("Horizontal", 20),
    Sketcher.Constraint("Horizontal", 22),
    Sketcher.Constraint("DistanceY", 5, 2, 5, 1, Q("3.5 mm")),
    Sketcher.Constraint("DistanceY", 5, 2, 10, 2, Q("3.5 mm")),
    Sketcher.Constraint("DistanceY", 18, 2, 11, 2, Q("3.5 mm")),
    Sketcher.Constraint("DistanceY", 18, 2, 19, 2, Q("3.5 mm")),
    Sketcher.Constraint("DistanceY", 21, 2, 20, 2, Q("3.5 mm")),
    Sketcher.Constraint("DistanceX", 5, 2, 6, 2, Q("1.75 mm")),
    Sketcher.Constraint("DistanceX", 6, 2, 24, 2, Q("2.625 mm")),
    Sketcher.Constraint("Distance", 1, Q("0.413598 mm")),
    Sketcher.Constraint("DistanceX", 2, 1, 2, 2, Q("0.538462 mm")),
    Sketcher.Constraint("DistanceX", 18, 2, 18, 1, Q("0.336538 mm")),
    Sketcher.Constraint("DistanceX", 20, 1, 20, 2, Q("0.044872 mm")),
    Sketcher.Constraint("DistanceX", 22, 2, 22, 1, Q("0.336538 mm")),
    Sketcher.Constraint("DistanceX", 10, 2, 13, 2, Q("0.749499 mm")),
    Sketcher.Constraint("DistanceX", 13, 2, 14, 2, Q("0.875701 mm")),
    Sketcher.Constraint("Distance", 10, Q("1.98511 mm")),
    Sketcher.Constraint("Distance", 14, Q("1.28075 mm")),
    Sketcher.Constraint("DistanceX", 0, 2, 0, 1, Q("0.647135 mm")),
    Sketcher.Constraint("DistanceX", 4, 1, 4, 2, Q("0.314103 mm")),
    Sketcher.Constraint("DistanceX", 11, 1, 11, 2, Q("2.378205 mm")),
    Sketcher.Constraint("DistanceX", 19, 2, -1, 1, Q("7.182911 mm")),
    Sketcher.Constraint("DistanceX", 21, 2, -1, 1, Q("5.65727 mm")),
    Sketcher.Constraint("DistanceX", 12, 2, 23, 2, Q("1.862179 mm")),
    Sketcher.Constraint("Distance", 23, Q("2.994804 mm")),
])
pocket4 = body.newObject("PartDesign::Pocket", "Pocket003")
pocket4.Profile = sketch6
pocket4.Length = 1
pocket4.Reversed = True
doc.recompute()

chamfer2 = body.newObject("PartDesign::Chamfer", "Chamfer001")
chamfer2.Base = (pocket4, edges_at(pocket4, [(0, 0, 44), (0, 0, -44)]))
chamfer2.Size = 1

sketch7 = body.newObject("Sketcher::SketchObject", "Sketch006")
sketch7.AttachmentSupport = (doc.getObject("XZ_Plane"), [""])
sketch7.MapMode = "FlatFace"
sketch7.addGeometry([
    Part.Circle(Vector(-12, 40, 0), Vector(0, 0, 1), 2.8),
    Part.Circle(Vector(12, 40, 0), Vector(0, 0, 1), 2.8),
    Part.Circle(Vector(-12, -40, 0), Vector(0, 0, 1), 2.8),
    Part.Circle(Vector(12, -40, 0), Vector(0, 0, 1), 2.8),
], False)
sketch7.addConstraint([
    Sketcher.Constraint("Equal", 0, 1),
    Sketcher.Constraint("Equal", 1, 2),
    Sketcher.Constraint("Equal", 2, 3),
    Sketcher.Constraint("Symmetric", 1, 3, 2, 3, -1, 1),
    Sketcher.Constraint("Symmetric", 0, 3, 3, 3, -1, 1),
    Sketcher.Constraint("Symmetric", 0, 3, 1, 3, -2),
    Sketcher.Constraint("Diameter", 0, Q("5.6 mm")),
    Sketcher.Constraint("DistanceX", 0, 3, -1, 1, Q("12 mm")),
    Sketcher.Constraint("DistanceY", -1, 1, 0, 3, Q("40 mm")),
])
pocket5 = body.newObject("PartDesign::Pocket", "Pocket004")
pocket5.Profile = sketch7
pocket5.Length = 3.5

doc.recompute()
